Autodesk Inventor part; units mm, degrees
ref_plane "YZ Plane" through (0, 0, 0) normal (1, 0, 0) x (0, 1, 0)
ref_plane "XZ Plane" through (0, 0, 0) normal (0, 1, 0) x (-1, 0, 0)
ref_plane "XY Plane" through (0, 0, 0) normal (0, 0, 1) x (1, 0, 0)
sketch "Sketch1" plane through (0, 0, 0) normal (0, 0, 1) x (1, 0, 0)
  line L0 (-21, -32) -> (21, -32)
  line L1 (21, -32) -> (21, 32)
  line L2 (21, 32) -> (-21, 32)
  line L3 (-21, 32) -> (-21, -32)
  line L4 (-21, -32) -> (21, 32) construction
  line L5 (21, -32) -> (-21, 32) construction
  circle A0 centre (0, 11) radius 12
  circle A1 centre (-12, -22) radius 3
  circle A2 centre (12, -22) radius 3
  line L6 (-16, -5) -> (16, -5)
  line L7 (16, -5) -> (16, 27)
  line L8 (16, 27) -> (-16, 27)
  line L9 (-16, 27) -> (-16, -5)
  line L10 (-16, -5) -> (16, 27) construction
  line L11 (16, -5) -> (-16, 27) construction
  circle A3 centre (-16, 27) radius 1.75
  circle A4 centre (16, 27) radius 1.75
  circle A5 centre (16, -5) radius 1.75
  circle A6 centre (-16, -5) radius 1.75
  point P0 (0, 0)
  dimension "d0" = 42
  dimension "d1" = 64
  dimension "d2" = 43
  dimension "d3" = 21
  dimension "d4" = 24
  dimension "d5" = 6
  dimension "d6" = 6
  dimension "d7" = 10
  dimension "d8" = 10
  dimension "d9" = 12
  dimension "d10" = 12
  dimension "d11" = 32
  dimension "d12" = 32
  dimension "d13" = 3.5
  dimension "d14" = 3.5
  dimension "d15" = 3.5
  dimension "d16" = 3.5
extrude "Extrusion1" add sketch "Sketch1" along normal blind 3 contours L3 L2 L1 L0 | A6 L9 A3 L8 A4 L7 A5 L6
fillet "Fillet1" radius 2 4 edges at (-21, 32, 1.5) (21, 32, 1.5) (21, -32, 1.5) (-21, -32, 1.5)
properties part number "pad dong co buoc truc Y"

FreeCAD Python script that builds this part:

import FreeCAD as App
import Part
import Sketcher
from FreeCAD import Vector
Q = App.Units.Quantity


def edges_at(feature, points):
    """Names of the edges that pass closest to the given points."""
    edges = feature.Shape.Edges
    near = lambda p: min(range(len(edges)), key=lambda i: edges[i].distToShape(Part.Vertex(*p))[0])
    return sorted({f"Edge{near(p) + 1}" for p in points})


def add_polygon(sketch, points):
    """Adds a closed chain of lines whose ends are joined by coincident constraints."""
    first, n = sketch.GeometryCount, len(points)
    for a, b in zip(points, points[1:] + points[:1]):
        sketch.addGeometry(Part.LineSegment(App.Vector(*a, 0), App.Vector(*b, 0)), False)
    for i in range(n):
        sketch.addConstraint(Sketcher.Constraint("Coincident", first + i, 2, first + (i + 1) % n, 1))

doc = App.newDocument("Part")
body = doc.addObject("PartDesign::Body", "Body")

# Sketch on XY plane
sketch1 = body.newObject("Sketcher::SketchObject", "Sketch")
sketch1.AttachmentSupport = (doc.getObject("XY_Plane"), [""])
sketch1.MapMode = "FlatFace"
add_polygon(sketch1, [(-21, 32), (-21, -32), (21, -32), (21, 32)])  # lines 0-3
sketch1.addGeometry(Part.Circle(Vector(-12, -22, 0), Vector(0, 0, 1), 3), False)  # 4
sketch1.addGeometry(Part.Circle(Vector(12, -22, 0), Vector(0, 0, 1), 3), False)  # 5
sketch1.addGeometry(Part.Circle(Vector(16, -5, 0), Vector(0, 0, 1), 1.75), False)  # 6
sketch1.addGeometry(Part.Circle(Vector(16, 27, 0), Vector(0, 0, 1), 1.75), False)  # 7
sketch1.addGeometry(Part.Circle(Vector(-16, 27, 0), Vector(0, 0, 1), 1.75), False)  # 8
sketch1.addGeometry(Part.Circle(Vector(-16, -5, 0), Vector(0, 0, 1), 1.75), False)  # 9
sketch1.addGeometry(Part.Circle(Vector(0, 11, 0), Vector(0, 0, 1), 12), False)  # 10
sketch1.addConstraint(Sketcher.Constraint("Vertical", 0))
sketch1.addConstraint(Sketcher.Constraint("Horizontal", 1))
sketch1.addConstraint(Sketcher.Constraint("Vertical", 2))
sketch1.addConstraint(Sketcher.Constraint("Horizontal", 3))
sketch1.addConstraint(Sketcher.Constraint("Equal", 4, 5))
sketch1.addConstraint(Sketcher.Constraint("Equal", 6, 7))
sketch1.addConstraint(Sketcher.Constraint("Equal", 7, 8))
sketch1.addConstraint(Sketcher.Constraint("Equal", 8, 9))
sketch1.addConstraint(Sketcher.Constraint("Symmetric", 0, 2, 2, 2, -1, 1))
sketch1.addConstraint(Sketcher.Constraint("Symmetric", 4, 3, 5, 3, -2))
sketch1.addConstraint(Sketcher.Constraint("Symmetric", 7, 3, 8, 3, -2))
sketch1.addConstraint(Sketcher.Constraint("Symmetric", 6, 3, 9, 3, -2))
sketch1.addConstraint(Sketcher.Constraint("PointOnObject", 10, 3, -2))
sketch1.addConstraint(Sketcher.Constraint("Vertical", 6, 3, 7, 3))
sketch1.addConstraint(Sketcher.Constraint("Diameter", 4, Q("6 mm")))
sketch1.addConstraint(Sketcher.Constraint("Diameter", 10, Q("24 mm")))
sketch1.addConstraint(Sketcher.Constraint("Diameter", 6, Q("3.5 mm")))
sketch1.addConstraint(Sketcher.Constraint("DistanceX", 1, 1, 1, 2, Q("42 mm")))
sketch1.addConstraint(Sketcher.Constraint("DistanceY", 0, 2, 0, 1, Q("64 mm")))
sketch1.addConstraint(Sketcher.Constraint("DistanceX", 4, 3, -1, 1, Q("12 mm")))
sketch1.addConstraint(Sketcher.Constraint("DistanceY", 6, 3, 7, 3, Q("32 mm")))
sketch1.addConstraint(Sketcher.Constraint("DistanceX", 8, 3, 7, 3, Q("32 mm")))
sketch1.addConstraint(Sketcher.Constraint("DistanceY", 0, 2, 4, 3, Q("10 mm")))
sketch1.addConstraint(Sketcher.Constraint("DistanceY", 0, 2, 10, 3, Q("43 mm")))
sketch1.addConstraint(Sketcher.Constraint("DistanceY", 6, 3, -1, 1, Q("5 mm")))
pad1 = body.newObject("PartDesign::Pad", "Pad")
pad1.Profile = sketch1
pad1.Length = 3
doc.recompute()

fillet = body.newObject("PartDesign::Fillet", "Fillet")
fillet.Base = (pad1, edges_at(pad1, [
    (-21, 32, 1.5),
    (21, 32, 1.5),
    (21, -32, 1.5),
    (-21, -32, 1.5),
]))
fillet.Radius = 2

doc.recompute()
